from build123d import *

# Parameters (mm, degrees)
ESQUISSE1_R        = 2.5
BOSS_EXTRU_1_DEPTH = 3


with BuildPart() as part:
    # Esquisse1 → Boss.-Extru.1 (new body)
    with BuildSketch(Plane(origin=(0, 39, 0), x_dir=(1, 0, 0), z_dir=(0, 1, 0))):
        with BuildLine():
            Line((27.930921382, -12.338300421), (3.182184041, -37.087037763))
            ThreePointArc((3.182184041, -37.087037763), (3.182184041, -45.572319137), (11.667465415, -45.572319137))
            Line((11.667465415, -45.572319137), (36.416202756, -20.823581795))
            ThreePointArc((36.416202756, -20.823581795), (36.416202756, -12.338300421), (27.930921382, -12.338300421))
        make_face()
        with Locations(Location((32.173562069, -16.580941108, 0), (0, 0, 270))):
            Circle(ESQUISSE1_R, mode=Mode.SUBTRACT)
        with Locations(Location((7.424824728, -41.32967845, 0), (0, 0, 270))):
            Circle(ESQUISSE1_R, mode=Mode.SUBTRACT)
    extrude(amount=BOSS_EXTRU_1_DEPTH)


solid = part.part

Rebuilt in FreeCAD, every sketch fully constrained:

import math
import FreeCAD as App
import Part
import Sketcher

V = App.Vector
Q = App.Units.Quantity

doc = App.newDocument("Part")
body = doc.addObject("PartDesign::Body", "Body")

# Sketch on XZ plane
sketch1 = doc.addObject("Sketcher::SketchObject", "Sketch")
body.addObject(sketch1)
sketch1.AttachmentSupport = (doc.XZ_Plane, [""])
sketch1.MapMode = "FlatFace"
sketch1.AttachmentOffset = App.Placement(V(0, 0, -39), App.Rotation())
sketch1.addGeometry(Part.LineSegment(V(27.9, 12.3, 0), V(3.2, 37.1, 0)), False)
sketch1.addGeometry(Part.ArcOfCircle(Part.Circle(V(7.4, 41.3, 0), V(0, 0, 1), 6), math.radians(45), math.radians(225)), False)
sketch1.addGeometry(Part.LineSegment(V(11.7, 45.6, 0), V(36.4, 20.8, 0)), False)
sketch1.addGeometry(Part.ArcOfCircle(Part.Circle(V(32.2, 16.6, 0), V(0, 0, 1), 6), math.radians(-135), math.radians(45)), False)
sketch1.addGeometry(Part.Circle(V(7.4, 41.3, 0), V(0, 0, 1), 2.5), False)
sketch1.addGeometry(Part.Circle(V(32.2, 16.6, 0), V(0, 0, 1), 2.5), False)
sketch1.addConstraint(Sketcher.Constraint("Tangent", 0, 2, 1, 2))
sketch1.addConstraint(Sketcher.Constraint("Tangent", 1, 1, 2, 1))
sketch1.addConstraint(Sketcher.Constraint("Tangent", 2, 2, 3, 2))
sketch1.addConstraint(Sketcher.Constraint("Tangent", 3, 1, 0, 1))
sketch1.addConstraint(Sketcher.Constraint("Coincident", 4, 3, 1, 3))
sketch1.addConstraint(Sketcher.Constraint("Coincident", 5, 3, 3, 3))
sketch1.addConstraint(Sketcher.Constraint("Equal", 1, 3))
sketch1.addConstraint(Sketcher.Constraint("Equal", 4, 5))
sketch1.addConstraint(Sketcher.Constraint("Diameter", 4, Q("5 mm")))
sketch1.addConstraint(Sketcher.Constraint("Radius", 1, Q("6 mm")))
sketch1.addConstraint(Sketcher.Constraint("Angle", 0, Q("135 deg")))
sketch1.addConstraint(Sketcher.Constraint("Distance", 0, Q("35 mm")))
sketch1.addConstraint(Sketcher.Constraint("DistanceY", -1, 1, 3, 1, Q("12.3383 mm")))
sketch1.addConstraint(Sketcher.Constraint("DistanceX", -1, 1, 3, 1, Q("27.930921 mm")))
pad1 = doc.addObject("PartDesign::Pad", "Pad")
body.addObject(pad1)
pad1.Profile = sketch1
pad1.Length = 3
pad1.Reversed = True

doc.recompute()
